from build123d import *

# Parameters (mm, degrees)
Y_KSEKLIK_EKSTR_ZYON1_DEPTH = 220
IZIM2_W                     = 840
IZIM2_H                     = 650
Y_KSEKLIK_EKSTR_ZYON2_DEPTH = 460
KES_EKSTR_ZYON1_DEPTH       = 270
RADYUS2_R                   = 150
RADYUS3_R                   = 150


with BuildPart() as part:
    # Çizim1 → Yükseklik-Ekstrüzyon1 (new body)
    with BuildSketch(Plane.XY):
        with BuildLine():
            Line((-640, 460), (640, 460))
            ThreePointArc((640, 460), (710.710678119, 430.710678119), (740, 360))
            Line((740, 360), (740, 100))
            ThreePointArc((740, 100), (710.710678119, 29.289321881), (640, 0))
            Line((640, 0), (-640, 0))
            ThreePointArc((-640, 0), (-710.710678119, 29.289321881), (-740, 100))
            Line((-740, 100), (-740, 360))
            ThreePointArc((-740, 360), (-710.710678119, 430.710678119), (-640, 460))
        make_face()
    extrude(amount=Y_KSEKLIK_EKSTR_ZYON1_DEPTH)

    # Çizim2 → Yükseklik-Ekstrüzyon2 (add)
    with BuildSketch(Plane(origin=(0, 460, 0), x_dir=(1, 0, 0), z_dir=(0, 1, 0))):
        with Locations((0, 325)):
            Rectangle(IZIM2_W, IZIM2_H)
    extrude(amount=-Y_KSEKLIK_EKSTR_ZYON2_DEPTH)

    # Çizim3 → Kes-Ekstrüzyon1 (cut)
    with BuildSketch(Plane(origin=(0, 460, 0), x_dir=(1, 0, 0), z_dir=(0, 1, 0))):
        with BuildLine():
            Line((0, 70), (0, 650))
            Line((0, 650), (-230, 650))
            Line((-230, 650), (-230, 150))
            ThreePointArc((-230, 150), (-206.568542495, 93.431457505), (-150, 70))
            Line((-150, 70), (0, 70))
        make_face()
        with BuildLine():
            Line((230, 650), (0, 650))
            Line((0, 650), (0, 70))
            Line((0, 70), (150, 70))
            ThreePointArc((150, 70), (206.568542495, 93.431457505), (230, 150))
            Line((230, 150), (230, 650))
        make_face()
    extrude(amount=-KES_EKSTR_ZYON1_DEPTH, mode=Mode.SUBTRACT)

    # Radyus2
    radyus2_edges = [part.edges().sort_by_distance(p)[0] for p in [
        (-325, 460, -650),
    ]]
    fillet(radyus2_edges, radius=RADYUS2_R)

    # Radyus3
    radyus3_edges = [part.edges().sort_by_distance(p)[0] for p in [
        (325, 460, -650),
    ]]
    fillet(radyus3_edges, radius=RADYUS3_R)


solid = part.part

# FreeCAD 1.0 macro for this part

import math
import FreeCAD as App
import Part
import Sketcher

V = App.Vector
Q = App.Units.Quantity


def edges_at(feature, points):
    """Names of the edges that pass closest to the given points."""
    edges = feature.Shape.Edges
    near = lambda p: min(range(len(edges)), key=lambda i: edges[i].distToShape(Part.Vertex(*p))[0])
    return sorted({f"Edge{near(p) + 1}" for p in points})

doc = App.newDocument("Part")
body = doc.addObject("PartDesign::Body", "Body")

# Sketch on XY plane
sketch1 = doc.addObject("Sketcher::SketchObject", "Sketch")
body.addObject(sketch1)
sketch1.AttachmentSupport = (doc.XY_Plane, [""])
sketch1.MapMode = "FlatFace"
sketch1.addGeometry([
    Part.LineSegment(V(640, 460, 0), V(-640, 460, 0)),  # 0
    Part.ArcOfCircle(Part.Circle(V(-640, 360, 0), V(0, 0, 1), 100), math.radians(90), math.radians(180)),  # 1
    Part.LineSegment(V(-740, 360, 0), V(-740, 100, 0)),  # 2
    Part.ArcOfCircle(Part.Circle(V(-640, 100, 0), V(0, 0, 1), 100), math.radians(180), math.radians(270)),  # 3
    Part.LineSegment(V(-640, 0, 0), V(640, 0, 0)),  # 4
    Part.ArcOfCircle(Part.Circle(V(640, 100, 0), V(0, 0, 1), 100), math.radians(-90), math.radians(0)),  # 5
    Part.LineSegment(V(740, 100, 0), V(740, 360, 0)),  # 6
    Part.ArcOfCircle(Part.Circle(V(640, 360, 0), V(0, 0, 1), 100), math.radians(0), math.radians(90)),  # 7
], False)
sketch1.addConstraint([
    Sketcher.Constraint("Tangent", 0, 2, 1, 1),
    Sketcher.Constraint("Tangent", 1, 2, 2, 1),
    Sketcher.Constraint("Tangent", 2, 2, 3, 1),
    Sketcher.Constraint("Tangent", 3, 2, 4, 1),
    Sketcher.Constraint("Tangent", 4, 2, 5, 1),
    Sketcher.Constraint("Tangent", 5, 2, 6, 1),
    Sketcher.Constraint("Tangent", 6, 2, 7, 1),
    Sketcher.Constraint("Tangent", 7, 2, 0, 1),
    Sketcher.Constraint("Horizontal", 0),
    Sketcher.Constraint("Vertical", 2),
    Sketcher.Constraint("Horizontal", 4),
    Sketcher.Constraint("Vertical", 6),
    Sketcher.Constraint("Equal", 1, 3),
    Sketcher.Constraint("Equal", 3, 5),
    Sketcher.Constraint("Equal", 5, 7),
    Sketcher.Constraint("Symmetric", 3, 2, 4, 2, -1, 1),
    Sketcher.Constraint("Radius", 1, Q("100 mm")),
    Sketcher.Constraint("DistanceX", 0, 2, 0, 1, Q("1280 mm")),
    Sketcher.Constraint("DistanceY", 2, 2, 2, 1, Q("260 mm")),
])
pad1 = doc.addObject("PartDesign::Pad", "Pad")
body.addObject(pad1)
pad1.Profile = sketch1
pad1.Length = 220

# Sketch on XZ plane
sketch2 = doc.addObject("Sketcher::SketchObject", "Sketch001")
body.addObject(sketch2)
sketch2.AttachmentSupport = (doc.XZ_Plane, [""])
sketch2.MapMode = "FlatFace"
sketch2.AttachmentOffset = App.Placement(V(0, 0, -460), App.Rotation())
sketch2.addGeometry([
    Part.LineSegment(V(-420, -650, 0), V(-420, 0, 0)),
    Part.LineSegment(V(-420, 0, 0), V(420, 0, 0)),
    Part.LineSegment(V(420, 0, 0), V(420, -650, 0)),
    Part.LineSegment(V(420, -650, 0), V(-420, -650, 0)),
], False)
sketch2.addConstraint([
    Sketcher.Constraint("Coincident", 0, 2, 1, 1),
    Sketcher.Constraint("Coincident", 1, 2, 2, 1),
    Sketcher.Constraint("Coincident", 2, 2, 3, 1),
    Sketcher.Constraint("Coincident", 3, 2, 0, 1),
    Sketcher.Constraint("Vertical", 0),
    Sketcher.Constraint("Horizontal", 1),
    Sketcher.Constraint("Vertical", 2),
    Sketcher.Constraint("Horizontal", 3),
    Sketcher.Constraint("Symmetric", 0, 2, 1, 2, -1, 1),
    Sketcher.Constraint("DistanceX", 1, 1, 1, 2, Q("840 mm")),
    Sketcher.Constraint("DistanceY", 0, 1, 0, 2, Q("650 mm")),
])
pad2 = doc.addObject("PartDesign::Pad", "Pad001")
body.addObject(pad2)
pad2.Profile = sketch2
pad2.Length = 460

# Sketch on XZ plane
sketch3 = doc.addObject("Sketcher::SketchObject", "Sketch002")
body.addObject(sketch3)
sketch3.AttachmentSupport = (doc.XZ_Plane, [""])
sketch3.MapMode = "FlatFace"
sketch3.AttachmentOffset = App.Placement(V(0, 0, -460), App.Rotation())
sketch3.addGeometry([
    Part.LineSegment(V(-230, -650, 0), V(-230, -150, 0)),  # 0
    Part.ArcOfCircle(Part.Circle(V(-150, -150, 0), V(0, 0, 1), 80), math.radians(90), math.radians(180)),  # 1
    Part.LineSegment(V(-150, -70, 0), V(150, -70, 0)),  # 2
    Part.ArcOfCircle(Part.Circle(V(150, -150, 0), V(0, 0, 1), 80), math.radians(0), math.radians(90)),  # 3
    Part.LineSegment(V(230, -150, 0), V(230, -650, 0)),  # 4
    Part.LineSegment(V(230, -650, 0), V(-230, -650, 0)),  # 5
], False)
sketch3.addConstraint([
    Sketcher.Constraint("Tangent", 0, 2, 1, 2),
    Sketcher.Constraint("Tangent", 1, 1, 2, 1),
    Sketcher.Constraint("Tangent", 2, 2, 3, 2),
    Sketcher.Constraint("Tangent", 3, 1, 4, 1),
    Sketcher.Constraint("Coincident", 4, 2, 5, 1),
    Sketcher.Constraint("Coincident", 5, 2, 0, 1),
    Sketcher.Constraint("Vertical", 0),
    Sketcher.Constraint("Horizontal", 2),
    Sketcher.Constraint("Vertical", 4),
    Sketcher.Constraint("Horizontal", 5),
    Sketcher.Constraint("Equal", 1, 3),
    Sketcher.Constraint("Radius", 1, Q("80 mm")),
    Sketcher.Constraint("DistanceX", 2, 1, 2, 2, Q("300 mm")),
    Sketcher.Constraint("DistanceY", 0, 1, 0, 2, Q("500 mm")),
    Sketcher.Constraint("DistanceX", 1, 3, -1, 1, Q("150 mm")),
    Sketcher.Constraint("DistanceY", 1, 3, -1, 1, Q("150 mm")),
])
pocket1 = doc.addObject("PartDesign::Pocket", "Pocket")
body.addObject(pocket1)
pocket1.Profile = sketch3
pocket1.Length = 270
pocket1.Reversed = True
doc.recompute()

fillet = doc.addObject("PartDesign::Fillet", "Fillet")
body.addObject(fillet)
fillet.Base = (pocket1, edges_at(pocket1, [(-325, 460, -650)]))
fillet.Radius = 150
doc.recompute()

fillet2 = doc.addObject("PartDesign::Fillet", "Fillet001")
body.addObject(fillet2)
fillet2.Base = (fillet, edges_at(fillet, [(325, 460, -650)]))
fillet2.Radius = 150

doc.recompute()
